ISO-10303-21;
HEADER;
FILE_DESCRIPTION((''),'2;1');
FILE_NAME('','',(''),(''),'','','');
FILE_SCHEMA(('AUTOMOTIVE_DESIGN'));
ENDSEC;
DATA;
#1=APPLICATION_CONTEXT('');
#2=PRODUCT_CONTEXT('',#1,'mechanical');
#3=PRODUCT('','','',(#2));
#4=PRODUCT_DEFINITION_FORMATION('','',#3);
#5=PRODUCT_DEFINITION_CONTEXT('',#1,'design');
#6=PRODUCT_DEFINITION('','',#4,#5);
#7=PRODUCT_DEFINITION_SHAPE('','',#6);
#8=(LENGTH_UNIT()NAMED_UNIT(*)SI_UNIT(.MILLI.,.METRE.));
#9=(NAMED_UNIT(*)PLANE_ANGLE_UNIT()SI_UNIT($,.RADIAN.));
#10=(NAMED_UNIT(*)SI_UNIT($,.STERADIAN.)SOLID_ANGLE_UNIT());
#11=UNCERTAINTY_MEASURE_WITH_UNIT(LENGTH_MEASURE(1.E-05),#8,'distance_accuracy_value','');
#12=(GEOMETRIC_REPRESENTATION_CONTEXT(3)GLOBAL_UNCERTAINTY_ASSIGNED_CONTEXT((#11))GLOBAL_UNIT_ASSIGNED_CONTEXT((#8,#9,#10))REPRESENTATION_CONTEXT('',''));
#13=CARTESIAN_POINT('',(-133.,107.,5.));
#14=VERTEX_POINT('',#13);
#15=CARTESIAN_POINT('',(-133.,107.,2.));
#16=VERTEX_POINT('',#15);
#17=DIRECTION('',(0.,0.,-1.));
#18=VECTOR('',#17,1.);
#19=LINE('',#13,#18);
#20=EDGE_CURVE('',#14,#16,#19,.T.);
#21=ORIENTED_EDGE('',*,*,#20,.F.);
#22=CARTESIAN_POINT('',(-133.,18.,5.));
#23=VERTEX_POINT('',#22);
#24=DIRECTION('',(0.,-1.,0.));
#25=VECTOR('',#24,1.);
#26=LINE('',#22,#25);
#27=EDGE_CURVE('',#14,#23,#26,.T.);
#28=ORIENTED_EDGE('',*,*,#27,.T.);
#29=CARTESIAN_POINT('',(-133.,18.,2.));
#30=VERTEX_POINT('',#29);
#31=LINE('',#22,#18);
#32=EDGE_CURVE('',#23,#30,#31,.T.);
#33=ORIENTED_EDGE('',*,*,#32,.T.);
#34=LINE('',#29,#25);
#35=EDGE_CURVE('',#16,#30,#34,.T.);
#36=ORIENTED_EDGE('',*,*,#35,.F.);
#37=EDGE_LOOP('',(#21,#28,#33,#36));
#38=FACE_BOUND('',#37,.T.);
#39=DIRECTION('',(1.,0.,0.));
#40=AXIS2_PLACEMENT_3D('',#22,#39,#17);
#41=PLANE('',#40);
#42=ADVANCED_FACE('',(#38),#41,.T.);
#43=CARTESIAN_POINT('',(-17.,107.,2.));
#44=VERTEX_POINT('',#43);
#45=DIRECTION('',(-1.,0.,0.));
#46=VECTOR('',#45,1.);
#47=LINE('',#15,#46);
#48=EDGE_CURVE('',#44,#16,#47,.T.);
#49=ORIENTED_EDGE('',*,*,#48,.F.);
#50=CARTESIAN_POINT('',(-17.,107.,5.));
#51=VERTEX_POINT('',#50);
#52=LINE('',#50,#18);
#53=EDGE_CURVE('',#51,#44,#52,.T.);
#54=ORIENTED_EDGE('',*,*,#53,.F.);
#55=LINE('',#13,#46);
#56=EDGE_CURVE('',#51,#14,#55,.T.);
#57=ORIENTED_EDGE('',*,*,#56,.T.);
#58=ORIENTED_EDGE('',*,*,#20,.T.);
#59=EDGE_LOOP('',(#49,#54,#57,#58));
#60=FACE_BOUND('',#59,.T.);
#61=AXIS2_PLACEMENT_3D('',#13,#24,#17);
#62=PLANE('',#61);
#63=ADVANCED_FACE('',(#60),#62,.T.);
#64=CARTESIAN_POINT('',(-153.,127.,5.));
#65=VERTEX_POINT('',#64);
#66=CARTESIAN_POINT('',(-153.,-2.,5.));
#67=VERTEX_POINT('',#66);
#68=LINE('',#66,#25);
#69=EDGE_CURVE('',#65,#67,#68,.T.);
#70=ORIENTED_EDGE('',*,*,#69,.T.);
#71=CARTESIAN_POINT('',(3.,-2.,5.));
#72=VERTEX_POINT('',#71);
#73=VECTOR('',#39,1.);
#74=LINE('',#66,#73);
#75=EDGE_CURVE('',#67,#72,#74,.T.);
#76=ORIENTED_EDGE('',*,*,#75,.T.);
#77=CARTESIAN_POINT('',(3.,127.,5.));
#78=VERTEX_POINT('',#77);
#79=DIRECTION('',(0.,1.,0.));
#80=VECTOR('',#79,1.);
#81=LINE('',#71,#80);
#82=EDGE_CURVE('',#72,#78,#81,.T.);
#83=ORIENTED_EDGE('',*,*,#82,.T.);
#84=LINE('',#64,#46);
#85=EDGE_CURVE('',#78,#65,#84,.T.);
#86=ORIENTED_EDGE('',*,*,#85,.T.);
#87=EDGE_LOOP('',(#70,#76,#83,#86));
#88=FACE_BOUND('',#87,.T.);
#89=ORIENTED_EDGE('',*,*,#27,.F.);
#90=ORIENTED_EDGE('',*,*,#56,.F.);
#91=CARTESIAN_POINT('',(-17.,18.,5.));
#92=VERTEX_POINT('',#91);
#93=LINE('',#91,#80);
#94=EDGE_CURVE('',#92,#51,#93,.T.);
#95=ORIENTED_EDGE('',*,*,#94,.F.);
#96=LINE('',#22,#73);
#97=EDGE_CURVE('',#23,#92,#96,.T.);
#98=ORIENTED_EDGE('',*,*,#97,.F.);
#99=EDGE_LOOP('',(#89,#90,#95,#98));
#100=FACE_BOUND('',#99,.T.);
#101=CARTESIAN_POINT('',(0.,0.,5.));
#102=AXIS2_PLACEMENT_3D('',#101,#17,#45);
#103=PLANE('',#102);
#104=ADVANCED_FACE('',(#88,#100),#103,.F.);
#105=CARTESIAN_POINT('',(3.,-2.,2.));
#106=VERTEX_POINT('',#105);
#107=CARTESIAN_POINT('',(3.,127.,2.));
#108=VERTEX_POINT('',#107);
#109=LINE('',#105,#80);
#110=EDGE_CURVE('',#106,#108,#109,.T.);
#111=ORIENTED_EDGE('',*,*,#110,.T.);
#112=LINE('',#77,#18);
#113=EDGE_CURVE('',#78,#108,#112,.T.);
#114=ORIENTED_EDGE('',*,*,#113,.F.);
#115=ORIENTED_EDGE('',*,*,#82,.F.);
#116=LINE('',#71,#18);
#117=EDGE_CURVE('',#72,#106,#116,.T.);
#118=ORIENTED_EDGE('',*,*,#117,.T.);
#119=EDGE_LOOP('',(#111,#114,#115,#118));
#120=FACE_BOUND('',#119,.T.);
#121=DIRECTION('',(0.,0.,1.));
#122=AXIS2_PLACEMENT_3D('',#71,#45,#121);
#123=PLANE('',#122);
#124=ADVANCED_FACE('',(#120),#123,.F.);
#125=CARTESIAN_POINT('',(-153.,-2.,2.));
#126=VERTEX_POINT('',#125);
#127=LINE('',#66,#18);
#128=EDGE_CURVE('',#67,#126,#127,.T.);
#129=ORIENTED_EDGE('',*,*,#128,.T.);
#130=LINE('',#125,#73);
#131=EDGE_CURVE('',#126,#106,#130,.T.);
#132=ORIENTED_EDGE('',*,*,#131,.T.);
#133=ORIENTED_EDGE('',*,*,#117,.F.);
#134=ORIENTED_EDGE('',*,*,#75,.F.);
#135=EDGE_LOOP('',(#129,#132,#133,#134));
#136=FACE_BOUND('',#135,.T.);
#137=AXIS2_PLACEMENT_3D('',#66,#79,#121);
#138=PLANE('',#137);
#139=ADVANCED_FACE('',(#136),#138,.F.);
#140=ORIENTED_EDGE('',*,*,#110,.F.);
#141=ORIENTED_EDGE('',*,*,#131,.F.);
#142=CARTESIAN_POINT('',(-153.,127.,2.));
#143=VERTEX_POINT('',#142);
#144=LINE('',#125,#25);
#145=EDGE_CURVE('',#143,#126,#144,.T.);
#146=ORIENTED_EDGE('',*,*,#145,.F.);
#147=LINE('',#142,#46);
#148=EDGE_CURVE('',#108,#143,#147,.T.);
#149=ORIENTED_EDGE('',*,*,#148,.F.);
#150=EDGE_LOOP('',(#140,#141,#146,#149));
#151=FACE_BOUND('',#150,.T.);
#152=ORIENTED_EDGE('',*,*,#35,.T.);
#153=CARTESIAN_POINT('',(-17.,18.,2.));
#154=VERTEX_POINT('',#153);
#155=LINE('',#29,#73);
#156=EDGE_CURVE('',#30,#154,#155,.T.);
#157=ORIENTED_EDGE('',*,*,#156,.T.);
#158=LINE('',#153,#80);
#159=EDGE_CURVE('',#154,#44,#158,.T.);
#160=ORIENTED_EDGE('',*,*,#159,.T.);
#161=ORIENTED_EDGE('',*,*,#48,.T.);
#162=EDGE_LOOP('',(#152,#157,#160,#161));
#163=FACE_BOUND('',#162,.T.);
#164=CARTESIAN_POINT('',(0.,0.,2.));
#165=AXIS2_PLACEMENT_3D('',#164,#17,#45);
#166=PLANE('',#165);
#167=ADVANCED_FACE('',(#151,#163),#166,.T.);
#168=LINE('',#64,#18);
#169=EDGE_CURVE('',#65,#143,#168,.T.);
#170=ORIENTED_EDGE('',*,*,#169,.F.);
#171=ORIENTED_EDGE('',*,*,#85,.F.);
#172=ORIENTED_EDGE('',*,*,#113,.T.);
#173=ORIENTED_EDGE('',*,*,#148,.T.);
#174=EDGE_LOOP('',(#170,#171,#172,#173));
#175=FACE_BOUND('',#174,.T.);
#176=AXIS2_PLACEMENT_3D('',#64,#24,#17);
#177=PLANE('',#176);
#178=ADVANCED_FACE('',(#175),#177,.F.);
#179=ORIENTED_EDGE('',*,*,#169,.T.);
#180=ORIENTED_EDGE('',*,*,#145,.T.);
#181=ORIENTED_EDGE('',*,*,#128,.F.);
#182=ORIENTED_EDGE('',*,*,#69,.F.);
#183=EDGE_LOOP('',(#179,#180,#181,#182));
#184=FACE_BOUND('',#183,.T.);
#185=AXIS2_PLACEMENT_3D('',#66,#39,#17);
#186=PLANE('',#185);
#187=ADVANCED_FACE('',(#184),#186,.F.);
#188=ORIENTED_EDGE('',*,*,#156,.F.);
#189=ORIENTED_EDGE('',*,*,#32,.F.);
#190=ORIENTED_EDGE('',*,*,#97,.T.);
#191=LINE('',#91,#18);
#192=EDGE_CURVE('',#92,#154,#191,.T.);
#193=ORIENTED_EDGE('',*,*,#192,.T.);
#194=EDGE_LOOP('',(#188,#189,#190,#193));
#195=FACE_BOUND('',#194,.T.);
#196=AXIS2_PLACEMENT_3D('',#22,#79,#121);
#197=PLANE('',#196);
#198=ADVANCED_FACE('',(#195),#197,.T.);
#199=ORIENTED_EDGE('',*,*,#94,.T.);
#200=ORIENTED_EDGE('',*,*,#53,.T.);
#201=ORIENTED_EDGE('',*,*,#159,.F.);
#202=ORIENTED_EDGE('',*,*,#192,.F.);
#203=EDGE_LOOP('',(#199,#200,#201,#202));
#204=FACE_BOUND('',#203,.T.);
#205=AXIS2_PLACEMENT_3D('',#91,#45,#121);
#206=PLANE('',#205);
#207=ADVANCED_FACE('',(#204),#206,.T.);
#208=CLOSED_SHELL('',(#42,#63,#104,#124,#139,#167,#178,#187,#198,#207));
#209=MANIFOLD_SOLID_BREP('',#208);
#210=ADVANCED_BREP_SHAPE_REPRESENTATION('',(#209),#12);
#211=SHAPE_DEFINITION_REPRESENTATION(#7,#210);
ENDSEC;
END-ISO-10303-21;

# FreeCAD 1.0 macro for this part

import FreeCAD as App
import Part
import Sketcher
from FreeCAD import Vector
Q = App.Units.Quantity


def add_polygon(sketch, points):
    """Adds a closed chain of lines whose ends are joined by coincident constraints."""
    first, n = sketch.GeometryCount, len(points)
    for a, b in zip(points, points[1:] + points[:1]):
        sketch.addGeometry(Part.LineSegment(App.Vector(*a, 0), App.Vector(*b, 0)), False)
    for i in range(n):
        sketch.addConstraint(Sketcher.Constraint("Coincident", first + i, 2, first + (i + 1) % n, 1))

doc = App.newDocument("Part")
body = doc.addObject("PartDesign::Body", "Body")

sketch1 = body.newObject("Sketcher::SketchObject", "Sketch")
sketch1.AttachmentSupport = (doc.getObject("XY_Plane"), [""])
sketch1.MapMode = "FlatFace"
sketch1.AttachmentOffset = App.Placement(Vector(0, 0, 2), App.Rotation())
add_polygon(sketch1, [(-153, 127), (-153, -2), (3, -2), (3, 127)])
add_polygon(sketch1, [(-17, 18), (-133, 18), (-133, 107), (-17, 107)])
sketch1.addConstraint(Sketcher.Constraint("Vertical", 0))
sketch1.addConstraint(Sketcher.Constraint("Horizontal", 1))
sketch1.addConstraint(Sketcher.Constraint("Vertical", 2))
sketch1.addConstraint(Sketcher.Constraint("Horizontal", 3))
sketch1.addConstraint(Sketcher.Constraint("Horizontal", 4))
sketch1.addConstraint(Sketcher.Constraint("Vertical", 5))
sketch1.addConstraint(Sketcher.Constraint("Horizontal", 6))
sketch1.addConstraint(Sketcher.Constraint("Vertical", 7))
sketch1.addConstraint(Sketcher.Constraint("DistanceX", 1, 1, 1, 2, Q("156 mm")))
sketch1.addConstraint(Sketcher.Constraint("DistanceX", 4, 2, 4, 1, Q("116 mm")))
sketch1.addConstraint(Sketcher.Constraint("DistanceY", 0, 2, 0, 1, Q("129 mm")))
sketch1.addConstraint(Sketcher.Constraint("DistanceY", 5, 1, 5, 2, Q("89 mm")))
sketch1.addConstraint(Sketcher.Constraint("DistanceX", 0, 2, -1, 1, Q("153 mm")))
sketch1.addConstraint(Sketcher.Constraint("DistanceY", 0, 2, -1, 1, Q("2 mm")))
sketch1.addConstraint(Sketcher.Constraint("DistanceX", 4, 2, -1, 1, Q("133 mm")))
sketch1.addConstraint(Sketcher.Constraint("DistanceY", -1, 1, 4, 2, Q("18 mm")))
pad1 = body.newObject("PartDesign::Pad", "Pad")
pad1.Profile = sketch1
pad1.Length = 3

doc.recompute()
